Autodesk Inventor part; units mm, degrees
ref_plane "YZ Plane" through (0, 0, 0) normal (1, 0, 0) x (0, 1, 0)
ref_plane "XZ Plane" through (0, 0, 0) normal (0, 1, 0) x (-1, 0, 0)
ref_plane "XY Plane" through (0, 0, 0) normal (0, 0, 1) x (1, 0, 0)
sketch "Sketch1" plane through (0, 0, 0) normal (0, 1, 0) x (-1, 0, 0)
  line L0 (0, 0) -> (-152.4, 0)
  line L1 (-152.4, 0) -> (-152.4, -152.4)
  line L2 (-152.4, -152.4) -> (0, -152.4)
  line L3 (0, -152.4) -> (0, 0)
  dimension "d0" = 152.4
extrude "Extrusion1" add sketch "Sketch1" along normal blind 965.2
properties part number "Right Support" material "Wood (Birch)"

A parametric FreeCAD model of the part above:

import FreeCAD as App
import Part
import Sketcher
from FreeCAD import Vector
Q = App.Units.Quantity

doc = App.newDocument("Part")
params = doc.addObject("Spreadsheet::Sheet", "Params")
for row, (alias, value) in enumerate([
    ("sketch1_width", "6 in"),
    ("pad1_length", "38 in"),
], start=1):
    params.set(f"A{row}", alias)
    params.set(f"B{row}", "=" + value)
    params.setAlias(f"B{row}", alias)

body = doc.addObject("PartDesign::Body", "Body")

# Sketch on XZ plane
sketch1 = body.newObject("Sketcher::SketchObject", "Sketch")
sketch1.AttachmentSupport = (doc.getObject("XZ_Plane"), [""])
sketch1.MapMode = "FlatFace"
sketch1.addGeometry([
    Part.LineSegment(Vector(0, -152.4, 0), Vector(0, 0, 0)),
    Part.LineSegment(Vector(0, 0, 0), Vector(152.4, 0, 0)),
    Part.LineSegment(Vector(152.4, 0, 0), Vector(152.4, -152.4, 0)),
    Part.LineSegment(Vector(152.4, -152.4, 0), Vector(0, -152.4, 0)),
], False)
sketch1.addConstraint([
    Sketcher.Constraint("Coincident", 0, 2, 1, 1),
    Sketcher.Constraint("Coincident", 1, 2, 2, 1),
    Sketcher.Constraint("Coincident", 2, 2, 3, 1),
    Sketcher.Constraint("Coincident", 3, 2, 0, 1),
    Sketcher.Constraint("Vertical", 0),
    Sketcher.Constraint("Horizontal", 1),
    Sketcher.Constraint("Vertical", 2),
    Sketcher.Constraint("Horizontal", 3),
    Sketcher.Constraint("Coincident", 0, 2, -1, 1),
    Sketcher.Constraint("Equal", 3, 0),
    Sketcher.Constraint("DistanceX", 1, 1, 1, 2, Q("6 in")),
])
sketch1.setExpression("Constraints[10]", "Params.sketch1_width")
pad1 = body.newObject("PartDesign::Pad", "Pad")
pad1.Profile = sketch1
pad1.setExpression("Length", "Params.pad1_length")
pad1.Reversed = True

doc.recompute()
